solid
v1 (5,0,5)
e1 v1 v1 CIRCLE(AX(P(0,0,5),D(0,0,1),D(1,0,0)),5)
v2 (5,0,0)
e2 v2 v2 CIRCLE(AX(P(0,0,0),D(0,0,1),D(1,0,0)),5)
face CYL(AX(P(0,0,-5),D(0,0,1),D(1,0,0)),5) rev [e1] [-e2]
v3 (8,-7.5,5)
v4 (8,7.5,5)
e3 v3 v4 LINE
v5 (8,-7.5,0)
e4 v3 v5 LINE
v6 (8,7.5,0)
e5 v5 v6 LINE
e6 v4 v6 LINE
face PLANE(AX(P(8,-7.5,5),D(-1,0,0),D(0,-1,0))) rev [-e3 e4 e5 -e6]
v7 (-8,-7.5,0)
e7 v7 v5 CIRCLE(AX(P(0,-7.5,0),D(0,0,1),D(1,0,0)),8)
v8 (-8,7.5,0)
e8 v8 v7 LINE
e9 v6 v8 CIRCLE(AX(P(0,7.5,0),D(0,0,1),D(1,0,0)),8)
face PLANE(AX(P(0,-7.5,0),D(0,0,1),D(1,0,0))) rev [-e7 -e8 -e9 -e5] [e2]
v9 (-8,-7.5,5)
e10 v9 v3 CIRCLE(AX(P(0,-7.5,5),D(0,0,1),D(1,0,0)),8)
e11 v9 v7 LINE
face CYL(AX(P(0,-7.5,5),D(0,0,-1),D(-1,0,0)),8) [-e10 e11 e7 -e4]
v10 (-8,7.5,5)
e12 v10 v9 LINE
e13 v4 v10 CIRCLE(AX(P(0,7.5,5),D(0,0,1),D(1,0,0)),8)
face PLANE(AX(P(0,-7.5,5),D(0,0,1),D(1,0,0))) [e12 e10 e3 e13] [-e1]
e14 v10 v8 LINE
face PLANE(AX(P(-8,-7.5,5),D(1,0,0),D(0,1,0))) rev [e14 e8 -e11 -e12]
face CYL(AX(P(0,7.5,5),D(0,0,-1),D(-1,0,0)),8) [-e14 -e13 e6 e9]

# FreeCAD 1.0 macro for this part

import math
import FreeCAD as App
import Part
import Sketcher

doc = App.newDocument("Part")
body = doc.addObject("PartDesign::Body", "Body")

# Sketch on XY plane
sketch1 = body.newObject("Sketcher::SketchObject", "Sketch")
sketch1.AttachmentSupport = (doc.getObject("XY_Plane"), [""])
sketch1.MapMode = "FlatFace"
sketch1.addGeometry([
    Part.LineSegment(App.Vector(-8, 7.5, 0), App.Vector(-8, -7.5, 0)),
    Part.ArcOfCircle(Part.Circle(App.Vector(0, -7.5, 0), App.Vector(0, 0, 1), 8), math.radians(180), math.radians(360)),
    Part.LineSegment(App.Vector(8, -7.5, 0), App.Vector(8, 7.5, 0)),
    Part.ArcOfCircle(Part.Circle(App.Vector(0, 7.5, 0), App.Vector(0, 0, 1), 8), math.radians(0), math.radians(180)),
], False)
sketch1.addConstraint([
    Sketcher.Constraint("Tangent", 0, 2, 1, 1),
    Sketcher.Constraint("Tangent", 1, 2, 2, 1),
    Sketcher.Constraint("Tangent", 2, 2, 3, 1),
    Sketcher.Constraint("Tangent", 3, 2, 0, 1),
    Sketcher.Constraint("Vertical", 0),
    Sketcher.Constraint("Vertical", 2),
    Sketcher.Constraint("Symmetric", 1, 3, 3, 3, -1, 1),
    Sketcher.Constraint("Radius", 1, 8.0),
    Sketcher.Constraint("DistanceY", 0, 2, 0, 1, 15.0),
])
pad1 = body.newObject("PartDesign::Pad", "Pad")
pad1.Profile = sketch1
pad1.Length = 5

# Sketch on XY plane
sketch2 = body.newObject("Sketcher::SketchObject", "Sketch001")
sketch2.AttachmentSupport = (doc.getObject("XY_Plane"), [""])
sketch2.MapMode = "FlatFace"
sketch2.AttachmentOffset = App.Placement(App.Vector(0, 0, 5), App.Rotation())
sketch2.addGeometry(Part.Circle(App.Vector(0, 0, 0), App.Vector(0, 0, 1), 5), False)
sketch2.addConstraint([
    Sketcher.Constraint("Coincident", 0, 3, -1, 1),
    Sketcher.Constraint("Diameter", 0, 10.0),
])
pocket1 = body.newObject("PartDesign::Pocket", "Pocket")
pocket1.Profile = sketch2
pocket1.Length = 10

doc.recompute()
